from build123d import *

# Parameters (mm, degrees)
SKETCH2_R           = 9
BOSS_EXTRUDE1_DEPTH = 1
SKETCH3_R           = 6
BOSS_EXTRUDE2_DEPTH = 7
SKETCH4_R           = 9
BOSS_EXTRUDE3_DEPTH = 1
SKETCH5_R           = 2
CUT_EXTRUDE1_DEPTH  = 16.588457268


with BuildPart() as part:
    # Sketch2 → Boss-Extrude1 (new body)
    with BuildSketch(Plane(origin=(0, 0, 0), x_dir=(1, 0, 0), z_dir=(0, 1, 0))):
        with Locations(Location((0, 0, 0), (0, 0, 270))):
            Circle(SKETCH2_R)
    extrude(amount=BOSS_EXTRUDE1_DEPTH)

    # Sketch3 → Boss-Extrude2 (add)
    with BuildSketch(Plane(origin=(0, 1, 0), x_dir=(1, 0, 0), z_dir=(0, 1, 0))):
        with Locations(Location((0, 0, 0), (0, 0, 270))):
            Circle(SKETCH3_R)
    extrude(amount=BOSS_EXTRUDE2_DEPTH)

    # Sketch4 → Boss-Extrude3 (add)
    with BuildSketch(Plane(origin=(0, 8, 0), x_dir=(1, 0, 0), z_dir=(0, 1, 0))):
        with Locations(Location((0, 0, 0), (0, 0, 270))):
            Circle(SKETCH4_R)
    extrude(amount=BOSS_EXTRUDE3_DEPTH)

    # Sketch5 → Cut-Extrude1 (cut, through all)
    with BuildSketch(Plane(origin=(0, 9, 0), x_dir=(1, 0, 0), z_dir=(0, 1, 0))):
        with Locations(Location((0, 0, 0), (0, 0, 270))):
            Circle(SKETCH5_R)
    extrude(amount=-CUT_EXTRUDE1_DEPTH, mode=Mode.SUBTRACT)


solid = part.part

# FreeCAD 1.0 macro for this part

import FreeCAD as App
import Part
import Sketcher
Q = App.Units.Quantity

doc = App.newDocument("Part")
body = doc.addObject("PartDesign::Body", "Body")

# Sketch on XZ plane
sketch1 = body.newObject("Sketcher::SketchObject", "Sketch")
sketch1.AttachmentSupport = (doc.getObject("XZ_Plane"), [""])
sketch1.MapMode = "FlatFace"
sketch1.addGeometry(Part.Circle(App.Vector(0, 0, 0), App.Vector(0, 0, 1), 9), False)
sketch1.addConstraint(Sketcher.Constraint("Coincident", 0, 3, -1, 1))
sketch1.addConstraint(Sketcher.Constraint("Diameter", 0, Q("18 mm")))
pad1 = body.newObject("PartDesign::Pad", "Pad")
pad1.Profile = sketch1
pad1.Length = 1
pad1.Reversed = True

# Sketch on XZ plane
sketch2 = body.newObject("Sketcher::SketchObject", "Sketch001")
sketch2.AttachmentSupport = (doc.getObject("XZ_Plane"), [""])
sketch2.MapMode = "FlatFace"
sketch2.AttachmentOffset = App.Placement(App.Vector(0, 0, -1), App.Rotation())
sketch2.addGeometry(Part.Circle(App.Vector(0, 0, 0), App.Vector(0, 0, 1), 6), False)
sketch2.addConstraint(Sketcher.Constraint("Coincident", 0, 3, -1, 1))
sketch2.addConstraint(Sketcher.Constraint("Diameter", 0, Q("12 mm")))
pad2 = body.newObject("PartDesign::Pad", "Pad001")
pad2.Profile = sketch2
pad2.Length = 7
pad2.Reversed = True

# Sketch on XZ plane
sketch3 = body.newObject("Sketcher::SketchObject", "Sketch002")
sketch3.AttachmentSupport = (doc.getObject("XZ_Plane"), [""])
sketch3.MapMode = "FlatFace"
sketch3.AttachmentOffset = App.Placement(App.Vector(0, 0, -8), App.Rotation())
sketch3.addGeometry(Part.Circle(App.Vector(0, 0, 0), App.Vector(0, 0, 1), 9), False)
sketch3.addConstraint(Sketcher.Constraint("Coincident", 0, 3, -1, 1))
sketch3.addConstraint(Sketcher.Constraint("Diameter", 0, Q("18 mm")))
pad3 = body.newObject("PartDesign::Pad", "Pad002")
pad3.Profile = sketch3
pad3.Length = 1
pad3.Reversed = True

# Sketch on XZ plane
sketch4 = body.newObject("Sketcher::SketchObject", "Sketch003")
sketch4.AttachmentSupport = (doc.getObject("XZ_Plane"), [""])
sketch4.MapMode = "FlatFace"
sketch4.AttachmentOffset = App.Placement(App.Vector(0, 0, -9), App.Rotation())
sketch4.addGeometry(Part.Circle(App.Vector(0, 0, 0), App.Vector(0, 0, 1), 2), False)
sketch4.addConstraint(Sketcher.Constraint("Coincident", 0, 3, -1, 1))
sketch4.addConstraint(Sketcher.Constraint("Diameter", 0, Q("4 mm")))
pocket1 = body.newObject("PartDesign::Pocket", "Pocket")
pocket1.Profile = sketch4
pocket1.Type = "ThroughAll"
pocket1.Reversed = True

doc.recompute()
